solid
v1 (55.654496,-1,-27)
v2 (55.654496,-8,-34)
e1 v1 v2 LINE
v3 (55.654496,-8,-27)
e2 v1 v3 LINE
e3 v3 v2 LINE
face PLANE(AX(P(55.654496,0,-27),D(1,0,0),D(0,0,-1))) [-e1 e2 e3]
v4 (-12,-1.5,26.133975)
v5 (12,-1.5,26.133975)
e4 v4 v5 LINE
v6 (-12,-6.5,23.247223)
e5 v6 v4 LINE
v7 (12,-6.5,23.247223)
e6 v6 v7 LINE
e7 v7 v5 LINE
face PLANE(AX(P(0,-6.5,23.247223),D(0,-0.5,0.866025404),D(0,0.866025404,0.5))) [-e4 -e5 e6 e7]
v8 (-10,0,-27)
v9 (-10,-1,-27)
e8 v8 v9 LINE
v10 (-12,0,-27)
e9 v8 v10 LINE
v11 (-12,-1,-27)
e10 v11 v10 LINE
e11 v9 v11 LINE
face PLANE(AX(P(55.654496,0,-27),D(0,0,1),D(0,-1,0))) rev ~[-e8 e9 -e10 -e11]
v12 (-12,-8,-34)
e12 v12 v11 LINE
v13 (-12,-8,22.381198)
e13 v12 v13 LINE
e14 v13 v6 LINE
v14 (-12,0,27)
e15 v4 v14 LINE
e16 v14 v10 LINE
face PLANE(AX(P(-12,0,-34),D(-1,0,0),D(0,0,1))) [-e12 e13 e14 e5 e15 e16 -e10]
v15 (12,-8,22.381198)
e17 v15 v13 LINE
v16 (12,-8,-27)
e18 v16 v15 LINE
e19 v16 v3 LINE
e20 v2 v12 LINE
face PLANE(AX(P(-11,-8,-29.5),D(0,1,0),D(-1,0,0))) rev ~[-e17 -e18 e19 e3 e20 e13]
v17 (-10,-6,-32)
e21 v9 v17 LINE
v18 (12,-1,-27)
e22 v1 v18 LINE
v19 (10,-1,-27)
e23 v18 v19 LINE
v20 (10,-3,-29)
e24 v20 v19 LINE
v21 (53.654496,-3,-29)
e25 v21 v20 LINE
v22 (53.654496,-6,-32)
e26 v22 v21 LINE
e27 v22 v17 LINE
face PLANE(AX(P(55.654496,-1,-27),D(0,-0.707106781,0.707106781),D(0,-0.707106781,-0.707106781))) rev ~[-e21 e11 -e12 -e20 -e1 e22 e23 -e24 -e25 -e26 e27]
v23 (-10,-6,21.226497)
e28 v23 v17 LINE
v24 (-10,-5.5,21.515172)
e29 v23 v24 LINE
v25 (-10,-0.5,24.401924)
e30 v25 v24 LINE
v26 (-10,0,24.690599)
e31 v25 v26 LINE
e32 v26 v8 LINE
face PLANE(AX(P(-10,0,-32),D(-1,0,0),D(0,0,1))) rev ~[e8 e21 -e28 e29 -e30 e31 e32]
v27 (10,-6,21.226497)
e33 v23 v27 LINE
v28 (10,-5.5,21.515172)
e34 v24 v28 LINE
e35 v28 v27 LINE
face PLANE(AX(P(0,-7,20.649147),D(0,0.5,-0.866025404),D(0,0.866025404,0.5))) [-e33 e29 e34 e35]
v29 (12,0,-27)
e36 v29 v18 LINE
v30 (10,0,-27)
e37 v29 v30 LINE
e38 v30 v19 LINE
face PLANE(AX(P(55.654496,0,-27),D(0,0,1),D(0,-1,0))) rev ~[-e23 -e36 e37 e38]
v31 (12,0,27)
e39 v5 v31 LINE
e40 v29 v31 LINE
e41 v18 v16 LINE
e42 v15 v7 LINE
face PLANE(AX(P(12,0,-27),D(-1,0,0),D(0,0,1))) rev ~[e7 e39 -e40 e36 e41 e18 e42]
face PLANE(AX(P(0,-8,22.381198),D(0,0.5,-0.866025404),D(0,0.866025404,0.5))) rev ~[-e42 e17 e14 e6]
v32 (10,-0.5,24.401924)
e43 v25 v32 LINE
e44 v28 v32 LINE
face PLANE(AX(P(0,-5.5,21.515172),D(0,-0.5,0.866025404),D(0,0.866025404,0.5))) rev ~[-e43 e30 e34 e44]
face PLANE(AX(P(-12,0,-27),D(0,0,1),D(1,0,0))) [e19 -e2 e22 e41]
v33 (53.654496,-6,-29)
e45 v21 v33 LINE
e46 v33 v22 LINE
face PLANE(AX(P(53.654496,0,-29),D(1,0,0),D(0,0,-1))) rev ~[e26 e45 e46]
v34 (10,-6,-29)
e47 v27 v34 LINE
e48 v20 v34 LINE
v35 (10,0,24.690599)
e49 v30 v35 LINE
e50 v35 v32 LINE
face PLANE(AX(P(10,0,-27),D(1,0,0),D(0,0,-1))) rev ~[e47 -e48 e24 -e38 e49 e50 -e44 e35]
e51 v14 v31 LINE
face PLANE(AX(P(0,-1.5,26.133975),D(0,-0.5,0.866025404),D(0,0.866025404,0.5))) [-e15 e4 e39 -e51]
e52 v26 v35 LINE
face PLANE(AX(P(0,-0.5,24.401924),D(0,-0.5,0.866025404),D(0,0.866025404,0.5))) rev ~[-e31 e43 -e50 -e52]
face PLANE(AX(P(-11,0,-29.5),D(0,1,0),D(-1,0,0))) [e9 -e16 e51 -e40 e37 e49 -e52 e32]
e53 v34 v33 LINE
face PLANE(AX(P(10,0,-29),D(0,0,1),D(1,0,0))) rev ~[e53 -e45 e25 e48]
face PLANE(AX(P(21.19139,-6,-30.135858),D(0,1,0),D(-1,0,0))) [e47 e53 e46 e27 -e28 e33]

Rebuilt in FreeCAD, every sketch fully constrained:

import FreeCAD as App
import Part
import Sketcher
Q = App.Units.Quantity


def faces_at(feature, points):
    """Names of the faces that lie closest to the given points."""
    faces = feature.Shape.Faces
    near = lambda p: min(range(len(faces)), key=lambda i: faces[i].distToShape(Part.Vertex(*p))[0])
    return sorted({f"Face{near(p) + 1}" for p in points})


def add_polygon(sketch, points):
    """Adds a closed chain of lines whose ends are joined by coincident constraints."""
    first, n = sketch.GeometryCount, len(points)
    for a, b in zip(points, points[1:] + points[:1]):
        sketch.addGeometry(Part.LineSegment(App.Vector(*a, 0), App.Vector(*b, 0)), False)
    for i in range(n):
        sketch.addConstraint(Sketcher.Constraint("Coincident", first + i, 2, first + (i + 1) % n, 1))

doc = App.newDocument("Part")
body = doc.addObject("PartDesign::Body", "Body")

sketch1 = body.newObject("Sketcher::SketchObject", "Sketch")
sketch1.AttachmentSupport = (doc.getObject("XZ_Plane"), [""])
sketch1.MapMode = "FlatFace"
add_polygon(sketch1, [(12, 27), (-12, 27), (-12, -27), (12, -27)])
sketch1.addConstraint(Sketcher.Constraint("Horizontal", 0))
sketch1.addConstraint(Sketcher.Constraint("Vertical", 1))
sketch1.addConstraint(Sketcher.Constraint("Horizontal", 2))
sketch1.addConstraint(Sketcher.Constraint("Vertical", 3))
sketch1.addConstraint(Sketcher.Constraint("Symmetric", 0, 2, 2, 2, -1, 1))
sketch1.addConstraint(Sketcher.Constraint("DistanceX", 0, 2, 0, 1, Q("24 mm")))
sketch1.addConstraint(Sketcher.Constraint("DistanceY", 1, 2, 1, 1, Q("54 mm")))
pad1 = body.newObject("PartDesign::Pad", "Pad")
pad1.Profile = sketch1
pad1.Length = 8

sketch2 = body.newObject("Sketcher::SketchObject", "Sketch001")
sketch2.AttachmentSupport = (doc.getObject("YZ_Plane"), [""])
sketch2.MapMode = "FlatFace"
add_polygon(sketch2, [(-6.5, 23.2), (-1.5, 26.1), (0, 27), (-8, 27), (-8, 22.4)])
sketch2.addConstraint(Sketcher.Constraint("Horizontal", 2))
sketch2.addConstraint(Sketcher.Constraint("Vertical", 3))
sketch2.addConstraint(Sketcher.Constraint("PointOnObject", 1, 2, -2))
sketch2.addConstraint(Sketcher.Constraint("Parallel", 0, 1))
sketch2.addConstraint(Sketcher.Constraint("Parallel", 1, 4))
sketch2.addConstraint(Sketcher.Constraint("Equal", 1, 4))
sketch2.addConstraint(Sketcher.Constraint("DistanceX", 2, 2, 2, 1, Q("8 mm")))
sketch2.addConstraint(Sketcher.Constraint("Angle", 0, Q("30 deg")))
sketch2.addConstraint(Sketcher.Constraint("DistanceY", -1, 1, 1, 2, Q("27 mm")))
sketch2.addConstraint(Sketcher.Constraint("DistanceX", 4, 2, 0, 2, Q("5 mm")))
pocket1 = body.newObject("PartDesign::Pocket", "Pocket")
pocket1.Profile = sketch2
pocket1.Length = 50

sketch3 = body.newObject("Sketcher::SketchObject", "Sketch002")
sketch3.AttachmentSupport = (doc.getObject("YZ_Plane"), [""])
sketch3.MapMode = "FlatFace"
add_polygon(sketch3, [(-6.5, 23.2), (-1.5, 26.1), (0, 27), (-8, 27), (-8, 22.4)])
sketch3.addConstraint(Sketcher.Constraint("Horizontal", 2))
sketch3.addConstraint(Sketcher.Constraint("Vertical", 3))
sketch3.addConstraint(Sketcher.Constraint("PointOnObject", 1, 2, -2))
sketch3.addConstraint(Sketcher.Constraint("Parallel", 0, 1))
sketch3.addConstraint(Sketcher.Constraint("Parallel", 1, 4))
sketch3.addConstraint(Sketcher.Constraint("Equal", 1, 4))
sketch3.addConstraint(Sketcher.Constraint("DistanceX", 2, 2, 2, 1, Q("8 mm")))
sketch3.addConstraint(Sketcher.Constraint("Angle", 0, Q("30 deg")))
sketch3.addConstraint(Sketcher.Constraint("DistanceY", -1, 1, 1, 2, Q("27 mm")))
sketch3.addConstraint(Sketcher.Constraint("DistanceX", 4, 2, 0, 2, Q("5 mm")))
pocket2 = body.newObject("PartDesign::Pocket", "Pocket001")
pocket2.Profile = sketch3
pocket2.Length = 25.4
pocket2.Reversed = True
doc.recompute()

thickness = body.newObject("PartDesign::Thickness", "Thickness")
thickness.Base = (pocket2, faces_at(pocket2, [(0, 0, 0), (0, -4, -27)]))
thickness.Value = 2
thickness.Reversed = True
thickness.Join = "Arc"

sketch4 = body.newObject("Sketcher::SketchObject", "Sketch003")
sketch4.AttachmentSupport = (doc.getObject("XZ_Plane"), [""])
sketch4.MapMode = "FlatFace"
add_polygon(sketch4, [(56, -34), (-12, -34), (-12, -27), (56, -27)])
sketch4.addConstraint(Sketcher.Constraint("Horizontal", 0))
sketch4.addConstraint(Sketcher.Constraint("Vertical", 1))
sketch4.addConstraint(Sketcher.Constraint("Horizontal", 2))
sketch4.addConstraint(Sketcher.Constraint("Vertical", 3))
sketch4.addConstraint(Sketcher.Constraint("DistanceY", 1, 1, 1, 2, Q("7 mm")))
sketch4.addConstraint(Sketcher.Constraint("DistanceX", 0, 2, -1, 1, Q("12 mm")))
sketch4.addConstraint(Sketcher.Constraint("DistanceY", 0, 2, -1, 1, Q("34 mm")))
sketch4.addConstraint(Sketcher.Constraint("DistanceX", 0, 2, 0, 1, Q("67.654496 mm")))
pad2 = body.newObject("PartDesign::Pad", "Pad001")
pad2.Profile = sketch4
pad2.Length = 8

sketch5 = body.newObject("Sketcher::SketchObject", "Sketch004")
sketch5.AttachmentSupport = (doc.getObject("YZ_Plane"), [""])
sketch5.MapMode = "FlatFace"
sketch5.AttachmentOffset = App.Placement(App.Vector(0, 0, 55.654496), App.Rotation())
add_polygon(sketch5, [(-1, -27), (-8, -34), (0, -34), (0, -27)])
sketch5.addConstraint(Sketcher.Constraint("Horizontal", 1))
sketch5.addConstraint(Sketcher.Constraint("Vertical", 2))
sketch5.addConstraint(Sketcher.Constraint("Horizontal", 3))
sketch5.addConstraint(Sketcher.Constraint("PointOnObject", 1, 2, -2))
sketch5.addConstraint(Sketcher.Constraint("DistanceX", 1, 1, 1, 2, Q("8 mm")))
sketch5.addConstraint(Sketcher.Constraint("DistanceX", 3, 2, 3, 1, Q("1 mm")))
sketch5.addConstraint(Sketcher.Constraint("DistanceY", 2, 1, 2, 2, Q("7 mm")))
sketch5.addConstraint(Sketcher.Constraint("DistanceY", 0, 2, -1, 1, Q("34 mm")))
pocket3 = body.newObject("PartDesign::Pocket", "Pocket002")
pocket3.Profile = sketch5
pocket3.Length = 76.2

sketch6 = body.newObject("Sketcher::SketchObject", "Sketch005")
sketch6.AttachmentSupport = (doc.getObject("XZ_Plane"), [""])
sketch6.MapMode = "FlatFace"
add_polygon(sketch6, [(-10, -32), (-10, -27), (10, -27), (10, -29), (53.7, -29), (53.7, -32)])
sketch6.addConstraint(Sketcher.Constraint("Vertical", 0))
sketch6.addConstraint(Sketcher.Constraint("Horizontal", 1))
sketch6.addConstraint(Sketcher.Constraint("Vertical", 2))
sketch6.addConstraint(Sketcher.Constraint("Horizontal", 3))
sketch6.addConstraint(Sketcher.Constraint("Vertical", 4))
sketch6.addConstraint(Sketcher.Constraint("Horizontal", 5))
sketch6.addConstraint(Sketcher.Constraint("DistanceX", 1, 1, 1, 2, Q("20 mm")))
sketch6.addConstraint(Sketcher.Constraint("DistanceY", 0, 1, 0, 2, Q("5 mm")))
sketch6.addConstraint(Sketcher.Constraint("DistanceY", 2, 2, 2, 1, Q("2 mm")))
sketch6.addConstraint(Sketcher.Constraint("DistanceX", 0, 2, -1, 1, Q("10 mm")))
sketch6.addConstraint(Sketcher.Constraint("DistanceY", 0, 2, -1, 1, Q("27 mm")))
sketch6.addConstraint(Sketcher.Constraint("DistanceX", 3, 1, 3, 2, Q("43.654496 mm")))
pocket4 = body.newObject("PartDesign::Pocket", "Pocket003")
pocket4.Profile = sketch6
pocket4.Length = 6
pocket4.Reversed = True

doc.recompute()
